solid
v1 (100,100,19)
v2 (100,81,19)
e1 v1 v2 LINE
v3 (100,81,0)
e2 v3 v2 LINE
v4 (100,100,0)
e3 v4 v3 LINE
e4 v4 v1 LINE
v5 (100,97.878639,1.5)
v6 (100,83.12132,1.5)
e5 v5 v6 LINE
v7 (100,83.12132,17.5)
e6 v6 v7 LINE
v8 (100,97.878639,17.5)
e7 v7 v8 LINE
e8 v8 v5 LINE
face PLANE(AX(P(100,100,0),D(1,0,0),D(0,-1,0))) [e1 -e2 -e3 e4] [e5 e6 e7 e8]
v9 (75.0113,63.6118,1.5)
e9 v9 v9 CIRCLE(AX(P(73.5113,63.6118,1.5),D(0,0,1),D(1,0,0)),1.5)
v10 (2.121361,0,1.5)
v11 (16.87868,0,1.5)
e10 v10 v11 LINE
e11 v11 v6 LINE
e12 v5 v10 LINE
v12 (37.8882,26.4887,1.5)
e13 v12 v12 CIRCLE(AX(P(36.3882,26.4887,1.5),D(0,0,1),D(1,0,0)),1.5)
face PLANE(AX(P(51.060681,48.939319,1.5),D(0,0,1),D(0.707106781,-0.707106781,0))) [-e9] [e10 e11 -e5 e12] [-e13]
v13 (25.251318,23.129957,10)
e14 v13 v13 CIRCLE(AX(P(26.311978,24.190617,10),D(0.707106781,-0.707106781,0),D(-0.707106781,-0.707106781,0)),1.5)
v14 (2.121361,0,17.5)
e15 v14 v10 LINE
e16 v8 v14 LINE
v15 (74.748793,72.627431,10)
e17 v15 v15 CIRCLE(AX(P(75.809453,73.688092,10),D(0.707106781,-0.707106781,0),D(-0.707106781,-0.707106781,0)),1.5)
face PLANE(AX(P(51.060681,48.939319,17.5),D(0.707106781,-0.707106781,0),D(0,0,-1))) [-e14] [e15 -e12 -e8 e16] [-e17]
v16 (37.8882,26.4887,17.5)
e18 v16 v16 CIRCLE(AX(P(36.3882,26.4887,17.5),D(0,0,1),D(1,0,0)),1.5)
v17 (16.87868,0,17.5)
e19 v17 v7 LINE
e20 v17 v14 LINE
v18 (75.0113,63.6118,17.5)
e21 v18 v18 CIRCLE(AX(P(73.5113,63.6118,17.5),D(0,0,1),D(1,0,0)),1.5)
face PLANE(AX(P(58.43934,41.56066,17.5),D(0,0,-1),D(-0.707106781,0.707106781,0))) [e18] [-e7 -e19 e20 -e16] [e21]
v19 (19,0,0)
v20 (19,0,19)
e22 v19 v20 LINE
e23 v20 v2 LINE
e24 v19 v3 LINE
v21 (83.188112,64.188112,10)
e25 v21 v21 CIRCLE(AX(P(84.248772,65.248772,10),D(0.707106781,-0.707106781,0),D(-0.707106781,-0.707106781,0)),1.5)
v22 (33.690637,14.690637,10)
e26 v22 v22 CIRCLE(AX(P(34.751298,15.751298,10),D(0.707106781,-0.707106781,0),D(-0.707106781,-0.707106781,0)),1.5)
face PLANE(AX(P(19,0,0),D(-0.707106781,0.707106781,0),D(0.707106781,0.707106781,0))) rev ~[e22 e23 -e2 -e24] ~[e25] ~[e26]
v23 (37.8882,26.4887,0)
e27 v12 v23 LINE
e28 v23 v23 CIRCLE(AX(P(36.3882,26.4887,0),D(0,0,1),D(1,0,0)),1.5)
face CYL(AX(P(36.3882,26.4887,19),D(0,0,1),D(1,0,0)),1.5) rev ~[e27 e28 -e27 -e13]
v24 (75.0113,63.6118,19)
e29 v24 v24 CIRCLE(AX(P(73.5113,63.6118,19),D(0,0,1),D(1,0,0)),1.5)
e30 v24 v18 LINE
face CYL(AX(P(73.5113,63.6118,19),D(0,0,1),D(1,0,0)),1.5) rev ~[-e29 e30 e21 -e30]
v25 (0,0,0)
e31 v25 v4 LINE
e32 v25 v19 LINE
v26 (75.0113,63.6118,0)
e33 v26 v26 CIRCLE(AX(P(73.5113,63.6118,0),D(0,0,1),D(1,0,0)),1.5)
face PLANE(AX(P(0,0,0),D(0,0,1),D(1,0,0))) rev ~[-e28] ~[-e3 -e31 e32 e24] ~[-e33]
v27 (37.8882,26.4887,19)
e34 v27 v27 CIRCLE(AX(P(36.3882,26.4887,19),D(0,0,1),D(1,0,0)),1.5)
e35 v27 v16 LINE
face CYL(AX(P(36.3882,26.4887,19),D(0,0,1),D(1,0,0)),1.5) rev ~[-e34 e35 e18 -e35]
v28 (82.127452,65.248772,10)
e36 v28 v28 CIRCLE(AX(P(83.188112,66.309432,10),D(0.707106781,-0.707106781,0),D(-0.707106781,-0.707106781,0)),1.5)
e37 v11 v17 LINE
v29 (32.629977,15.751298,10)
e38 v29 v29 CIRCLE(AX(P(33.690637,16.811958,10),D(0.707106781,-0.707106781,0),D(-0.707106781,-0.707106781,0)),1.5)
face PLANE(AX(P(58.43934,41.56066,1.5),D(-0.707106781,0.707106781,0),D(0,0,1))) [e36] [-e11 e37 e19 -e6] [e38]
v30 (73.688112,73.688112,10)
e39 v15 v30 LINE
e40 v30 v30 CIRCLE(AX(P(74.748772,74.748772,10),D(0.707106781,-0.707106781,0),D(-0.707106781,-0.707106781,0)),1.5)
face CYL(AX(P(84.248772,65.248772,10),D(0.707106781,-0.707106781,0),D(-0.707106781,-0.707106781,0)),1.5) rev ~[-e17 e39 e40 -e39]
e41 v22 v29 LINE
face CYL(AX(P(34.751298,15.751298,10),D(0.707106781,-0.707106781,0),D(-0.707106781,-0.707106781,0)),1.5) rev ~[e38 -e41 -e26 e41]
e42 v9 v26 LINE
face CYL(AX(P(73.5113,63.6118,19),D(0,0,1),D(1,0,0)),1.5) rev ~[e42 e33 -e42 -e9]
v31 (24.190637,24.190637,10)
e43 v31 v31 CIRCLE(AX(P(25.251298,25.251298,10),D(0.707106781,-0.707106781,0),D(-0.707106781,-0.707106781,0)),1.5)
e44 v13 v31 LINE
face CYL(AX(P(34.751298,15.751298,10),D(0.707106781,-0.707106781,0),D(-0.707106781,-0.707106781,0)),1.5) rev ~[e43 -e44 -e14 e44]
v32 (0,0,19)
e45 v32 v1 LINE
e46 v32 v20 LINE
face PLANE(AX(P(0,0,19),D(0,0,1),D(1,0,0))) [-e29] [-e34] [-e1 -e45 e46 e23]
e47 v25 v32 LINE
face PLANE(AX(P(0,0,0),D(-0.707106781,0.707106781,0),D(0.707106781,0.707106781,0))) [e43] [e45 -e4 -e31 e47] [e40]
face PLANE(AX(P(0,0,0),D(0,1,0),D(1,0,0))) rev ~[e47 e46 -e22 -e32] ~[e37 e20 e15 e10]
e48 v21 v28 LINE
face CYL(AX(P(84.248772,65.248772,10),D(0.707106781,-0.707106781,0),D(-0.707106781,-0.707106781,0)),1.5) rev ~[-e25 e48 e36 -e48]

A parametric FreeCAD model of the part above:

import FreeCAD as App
import Part
import Sketcher
from FreeCAD import Vector
Q = App.Units.Quantity

doc = App.newDocument("Part")
body = doc.addObject("PartDesign::Body", "Body")

sketch1 = body.newObject("Sketcher::SketchObject", "Sketch")
sketch1.AttachmentSupport = (doc.getObject("XY_Plane"), [""])
sketch1.MapMode = "FlatFace"
sketch1.addGeometry(Part.LineSegment(Vector(100, 100, 0), Vector(0, 0, 0)), False)
sketch1.addGeometry(Part.LineSegment(Vector(0, 0, 0), Vector(19, 0, 0)), False)
sketch1.addGeometry(Part.LineSegment(Vector(19, 0, 0), Vector(100, 81, 0)), False)
sketch1.addGeometry(Part.LineSegment(Vector(100, 81, 0), Vector(100, 100, 0)), False)
sketch1.addConstraint(Sketcher.Constraint("Coincident", 0, 2, 1, 1))
sketch1.addConstraint(Sketcher.Constraint("Coincident", 1, 2, 2, 1))
sketch1.addConstraint(Sketcher.Constraint("Coincident", 2, 2, 3, 1))
sketch1.addConstraint(Sketcher.Constraint("Coincident", 3, 2, 0, 1))
sketch1.addConstraint(Sketcher.Constraint("Horizontal", 1))
sketch1.addConstraint(Sketcher.Constraint("Vertical", 3))
sketch1.addConstraint(Sketcher.Constraint("Coincident", 0, 2, -1, 1))
sketch1.addConstraint(Sketcher.Constraint("Parallel", 0, 2))
sketch1.addConstraint(Sketcher.Constraint("Equal", 1, 3))
sketch1.addConstraint(Sketcher.Constraint("DistanceX", 1, 1, 1, 2, Q("19 mm")))
sketch1.addConstraint(Sketcher.Constraint("DistanceX", -1, 1, 2, 2, Q("100 mm")))
pad1 = body.newObject("PartDesign::Pad", "Pad")
pad1.Profile = sketch1
pad1.Length = 19

sketch2 = body.newObject("Sketcher::SketchObject", "Sketch001")
sketch2.Placement = App.Placement(Vector(59.5, 40.5, 19), App.Rotation(Vector(-0.707106781, 0.707106781, 0), Vector(0, 0, -0.999999999), Vector(-0.707106781, -0.707106781, 0), "ZXY"))
sketch2.addGeometry(Part.LineSegment(Vector(1.5, 1.5, 0), Vector(11.935, 1.5, 0)), False)
sketch2.addGeometry(Part.LineSegment(Vector(11.935, 1.5, 0), Vector(11.935, 17.5, 0)), False)
sketch2.addGeometry(Part.LineSegment(Vector(11.935, 17.5, 0), Vector(1.5, 17.5, 0)), False)
sketch2.addGeometry(Part.LineSegment(Vector(1.5, 17.5, 0), Vector(1.5, 1.5, 0)), False)
sketch2.addConstraint(Sketcher.Constraint("Coincident", 0, 2, 1, 1))
sketch2.addConstraint(Sketcher.Constraint("Coincident", 1, 2, 2, 1))
sketch2.addConstraint(Sketcher.Constraint("Coincident", 2, 2, 3, 1))
sketch2.addConstraint(Sketcher.Constraint("Coincident", 3, 2, 0, 1))
sketch2.addConstraint(Sketcher.Constraint("Horizontal", 0))
sketch2.addConstraint(Sketcher.Constraint("Vertical", 1))
sketch2.addConstraint(Sketcher.Constraint("Horizontal", 2))
sketch2.addConstraint(Sketcher.Constraint("Vertical", 3))
sketch2.addConstraint(Sketcher.Constraint("DistanceY", -1, 1, 0, 2, Q("1.5 mm")))
sketch2.addConstraint(Sketcher.Constraint("DistanceX", -1, 1, 2, 2, Q("1.5 mm")))
sketch2.addConstraint(Sketcher.Constraint("DistanceY", 1, 1, 1, 2, Q("16 mm")))
sketch2.addConstraint(Sketcher.Constraint("DistanceX", 0, 1, 0, 2, Q("10.435 mm")))
pocket1 = body.newObject("PartDesign::Pocket", "Pocket")
pocket1.Profile = sketch2
pocket1.Type = "ThroughAll"
pocket1.Midplane = True

sketch3 = body.newObject("Sketcher::SketchObject", "Sketch002")
sketch3.AttachmentSupport = (doc.getObject("XY_Plane"), [""])
sketch3.MapMode = "FlatFace"
sketch3.AttachmentOffset = App.Placement(Vector(0, 0, 19), App.Rotation())
sketch3.addGeometry(Part.Circle(Vector(36.3882, 26.4887, 0), Vector(0, 0, 1), 1.5), False)
sketch3.addGeometry(Part.Circle(Vector(73.5113, 63.6118, 0), Vector(0, 0, 1), 1.5), False)
sketch3.addConstraint(Sketcher.Constraint("Equal", 0, 1))
sketch3.addConstraint(Sketcher.Constraint("Diameter", 0, Q("3 mm")))
sketch3.addConstraint(Sketcher.Constraint("DistanceX", 0, 3, 1, 3, Q("37.123 mm")))
sketch3.addConstraint(Sketcher.Constraint("DistanceY", 0, 3, 1, 3, Q("37.123 mm")))
sketch3.addConstraint(Sketcher.Constraint("DistanceX", -1, 1, 0, 3, Q("36.3882 mm")))
sketch3.addConstraint(Sketcher.Constraint("DistanceY", -1, 1, 0, 3, Q("26.4887 mm")))
pocket2 = body.newObject("PartDesign::Pocket", "Pocket001")
pocket2.Profile = sketch3
pocket2.Type = "ThroughAll"

sketch4 = body.newObject("Sketcher::SketchObject", "Sketch003")
sketch4.Placement = App.Placement(Vector(100, 81, 19), App.Rotation(Vector(-0.707106781, -0.707106781, 0), Vector(0, 0, -0.999999999), Vector(0.707106781, -0.707106781, 0), "ZXY"))
sketch4.addGeometry(Part.Circle(Vector(92.2756, 9, 0), Vector(0, 0, 1), 1.5), False)
sketch4.addGeometry(Part.Circle(Vector(22.2756, 9, 0), Vector(0, 0, 1), 1.5), False)
sketch4.addConstraint(Sketcher.Constraint("Equal", 0, 1))
sketch4.addConstraint(Sketcher.Constraint("Horizontal", 0, 3, 1, 3))
sketch4.addConstraint(Sketcher.Constraint("Diameter", 0, Q("3 mm")))
sketch4.addConstraint(Sketcher.Constraint("DistanceX", 1, 3, 0, 3, Q("70 mm")))
sketch4.addConstraint(Sketcher.Constraint("DistanceY", -1, 1, 0, 3, Q("9 mm")))
sketch4.addConstraint(Sketcher.Constraint("DistanceX", -1, 1, 0, 3, Q("92.2756 mm")))
pocket3 = body.newObject("PartDesign::Pocket", "Pocket002")
pocket3.Profile = sketch4
pocket3.Type = "ThroughAll"

doc.recompute()
